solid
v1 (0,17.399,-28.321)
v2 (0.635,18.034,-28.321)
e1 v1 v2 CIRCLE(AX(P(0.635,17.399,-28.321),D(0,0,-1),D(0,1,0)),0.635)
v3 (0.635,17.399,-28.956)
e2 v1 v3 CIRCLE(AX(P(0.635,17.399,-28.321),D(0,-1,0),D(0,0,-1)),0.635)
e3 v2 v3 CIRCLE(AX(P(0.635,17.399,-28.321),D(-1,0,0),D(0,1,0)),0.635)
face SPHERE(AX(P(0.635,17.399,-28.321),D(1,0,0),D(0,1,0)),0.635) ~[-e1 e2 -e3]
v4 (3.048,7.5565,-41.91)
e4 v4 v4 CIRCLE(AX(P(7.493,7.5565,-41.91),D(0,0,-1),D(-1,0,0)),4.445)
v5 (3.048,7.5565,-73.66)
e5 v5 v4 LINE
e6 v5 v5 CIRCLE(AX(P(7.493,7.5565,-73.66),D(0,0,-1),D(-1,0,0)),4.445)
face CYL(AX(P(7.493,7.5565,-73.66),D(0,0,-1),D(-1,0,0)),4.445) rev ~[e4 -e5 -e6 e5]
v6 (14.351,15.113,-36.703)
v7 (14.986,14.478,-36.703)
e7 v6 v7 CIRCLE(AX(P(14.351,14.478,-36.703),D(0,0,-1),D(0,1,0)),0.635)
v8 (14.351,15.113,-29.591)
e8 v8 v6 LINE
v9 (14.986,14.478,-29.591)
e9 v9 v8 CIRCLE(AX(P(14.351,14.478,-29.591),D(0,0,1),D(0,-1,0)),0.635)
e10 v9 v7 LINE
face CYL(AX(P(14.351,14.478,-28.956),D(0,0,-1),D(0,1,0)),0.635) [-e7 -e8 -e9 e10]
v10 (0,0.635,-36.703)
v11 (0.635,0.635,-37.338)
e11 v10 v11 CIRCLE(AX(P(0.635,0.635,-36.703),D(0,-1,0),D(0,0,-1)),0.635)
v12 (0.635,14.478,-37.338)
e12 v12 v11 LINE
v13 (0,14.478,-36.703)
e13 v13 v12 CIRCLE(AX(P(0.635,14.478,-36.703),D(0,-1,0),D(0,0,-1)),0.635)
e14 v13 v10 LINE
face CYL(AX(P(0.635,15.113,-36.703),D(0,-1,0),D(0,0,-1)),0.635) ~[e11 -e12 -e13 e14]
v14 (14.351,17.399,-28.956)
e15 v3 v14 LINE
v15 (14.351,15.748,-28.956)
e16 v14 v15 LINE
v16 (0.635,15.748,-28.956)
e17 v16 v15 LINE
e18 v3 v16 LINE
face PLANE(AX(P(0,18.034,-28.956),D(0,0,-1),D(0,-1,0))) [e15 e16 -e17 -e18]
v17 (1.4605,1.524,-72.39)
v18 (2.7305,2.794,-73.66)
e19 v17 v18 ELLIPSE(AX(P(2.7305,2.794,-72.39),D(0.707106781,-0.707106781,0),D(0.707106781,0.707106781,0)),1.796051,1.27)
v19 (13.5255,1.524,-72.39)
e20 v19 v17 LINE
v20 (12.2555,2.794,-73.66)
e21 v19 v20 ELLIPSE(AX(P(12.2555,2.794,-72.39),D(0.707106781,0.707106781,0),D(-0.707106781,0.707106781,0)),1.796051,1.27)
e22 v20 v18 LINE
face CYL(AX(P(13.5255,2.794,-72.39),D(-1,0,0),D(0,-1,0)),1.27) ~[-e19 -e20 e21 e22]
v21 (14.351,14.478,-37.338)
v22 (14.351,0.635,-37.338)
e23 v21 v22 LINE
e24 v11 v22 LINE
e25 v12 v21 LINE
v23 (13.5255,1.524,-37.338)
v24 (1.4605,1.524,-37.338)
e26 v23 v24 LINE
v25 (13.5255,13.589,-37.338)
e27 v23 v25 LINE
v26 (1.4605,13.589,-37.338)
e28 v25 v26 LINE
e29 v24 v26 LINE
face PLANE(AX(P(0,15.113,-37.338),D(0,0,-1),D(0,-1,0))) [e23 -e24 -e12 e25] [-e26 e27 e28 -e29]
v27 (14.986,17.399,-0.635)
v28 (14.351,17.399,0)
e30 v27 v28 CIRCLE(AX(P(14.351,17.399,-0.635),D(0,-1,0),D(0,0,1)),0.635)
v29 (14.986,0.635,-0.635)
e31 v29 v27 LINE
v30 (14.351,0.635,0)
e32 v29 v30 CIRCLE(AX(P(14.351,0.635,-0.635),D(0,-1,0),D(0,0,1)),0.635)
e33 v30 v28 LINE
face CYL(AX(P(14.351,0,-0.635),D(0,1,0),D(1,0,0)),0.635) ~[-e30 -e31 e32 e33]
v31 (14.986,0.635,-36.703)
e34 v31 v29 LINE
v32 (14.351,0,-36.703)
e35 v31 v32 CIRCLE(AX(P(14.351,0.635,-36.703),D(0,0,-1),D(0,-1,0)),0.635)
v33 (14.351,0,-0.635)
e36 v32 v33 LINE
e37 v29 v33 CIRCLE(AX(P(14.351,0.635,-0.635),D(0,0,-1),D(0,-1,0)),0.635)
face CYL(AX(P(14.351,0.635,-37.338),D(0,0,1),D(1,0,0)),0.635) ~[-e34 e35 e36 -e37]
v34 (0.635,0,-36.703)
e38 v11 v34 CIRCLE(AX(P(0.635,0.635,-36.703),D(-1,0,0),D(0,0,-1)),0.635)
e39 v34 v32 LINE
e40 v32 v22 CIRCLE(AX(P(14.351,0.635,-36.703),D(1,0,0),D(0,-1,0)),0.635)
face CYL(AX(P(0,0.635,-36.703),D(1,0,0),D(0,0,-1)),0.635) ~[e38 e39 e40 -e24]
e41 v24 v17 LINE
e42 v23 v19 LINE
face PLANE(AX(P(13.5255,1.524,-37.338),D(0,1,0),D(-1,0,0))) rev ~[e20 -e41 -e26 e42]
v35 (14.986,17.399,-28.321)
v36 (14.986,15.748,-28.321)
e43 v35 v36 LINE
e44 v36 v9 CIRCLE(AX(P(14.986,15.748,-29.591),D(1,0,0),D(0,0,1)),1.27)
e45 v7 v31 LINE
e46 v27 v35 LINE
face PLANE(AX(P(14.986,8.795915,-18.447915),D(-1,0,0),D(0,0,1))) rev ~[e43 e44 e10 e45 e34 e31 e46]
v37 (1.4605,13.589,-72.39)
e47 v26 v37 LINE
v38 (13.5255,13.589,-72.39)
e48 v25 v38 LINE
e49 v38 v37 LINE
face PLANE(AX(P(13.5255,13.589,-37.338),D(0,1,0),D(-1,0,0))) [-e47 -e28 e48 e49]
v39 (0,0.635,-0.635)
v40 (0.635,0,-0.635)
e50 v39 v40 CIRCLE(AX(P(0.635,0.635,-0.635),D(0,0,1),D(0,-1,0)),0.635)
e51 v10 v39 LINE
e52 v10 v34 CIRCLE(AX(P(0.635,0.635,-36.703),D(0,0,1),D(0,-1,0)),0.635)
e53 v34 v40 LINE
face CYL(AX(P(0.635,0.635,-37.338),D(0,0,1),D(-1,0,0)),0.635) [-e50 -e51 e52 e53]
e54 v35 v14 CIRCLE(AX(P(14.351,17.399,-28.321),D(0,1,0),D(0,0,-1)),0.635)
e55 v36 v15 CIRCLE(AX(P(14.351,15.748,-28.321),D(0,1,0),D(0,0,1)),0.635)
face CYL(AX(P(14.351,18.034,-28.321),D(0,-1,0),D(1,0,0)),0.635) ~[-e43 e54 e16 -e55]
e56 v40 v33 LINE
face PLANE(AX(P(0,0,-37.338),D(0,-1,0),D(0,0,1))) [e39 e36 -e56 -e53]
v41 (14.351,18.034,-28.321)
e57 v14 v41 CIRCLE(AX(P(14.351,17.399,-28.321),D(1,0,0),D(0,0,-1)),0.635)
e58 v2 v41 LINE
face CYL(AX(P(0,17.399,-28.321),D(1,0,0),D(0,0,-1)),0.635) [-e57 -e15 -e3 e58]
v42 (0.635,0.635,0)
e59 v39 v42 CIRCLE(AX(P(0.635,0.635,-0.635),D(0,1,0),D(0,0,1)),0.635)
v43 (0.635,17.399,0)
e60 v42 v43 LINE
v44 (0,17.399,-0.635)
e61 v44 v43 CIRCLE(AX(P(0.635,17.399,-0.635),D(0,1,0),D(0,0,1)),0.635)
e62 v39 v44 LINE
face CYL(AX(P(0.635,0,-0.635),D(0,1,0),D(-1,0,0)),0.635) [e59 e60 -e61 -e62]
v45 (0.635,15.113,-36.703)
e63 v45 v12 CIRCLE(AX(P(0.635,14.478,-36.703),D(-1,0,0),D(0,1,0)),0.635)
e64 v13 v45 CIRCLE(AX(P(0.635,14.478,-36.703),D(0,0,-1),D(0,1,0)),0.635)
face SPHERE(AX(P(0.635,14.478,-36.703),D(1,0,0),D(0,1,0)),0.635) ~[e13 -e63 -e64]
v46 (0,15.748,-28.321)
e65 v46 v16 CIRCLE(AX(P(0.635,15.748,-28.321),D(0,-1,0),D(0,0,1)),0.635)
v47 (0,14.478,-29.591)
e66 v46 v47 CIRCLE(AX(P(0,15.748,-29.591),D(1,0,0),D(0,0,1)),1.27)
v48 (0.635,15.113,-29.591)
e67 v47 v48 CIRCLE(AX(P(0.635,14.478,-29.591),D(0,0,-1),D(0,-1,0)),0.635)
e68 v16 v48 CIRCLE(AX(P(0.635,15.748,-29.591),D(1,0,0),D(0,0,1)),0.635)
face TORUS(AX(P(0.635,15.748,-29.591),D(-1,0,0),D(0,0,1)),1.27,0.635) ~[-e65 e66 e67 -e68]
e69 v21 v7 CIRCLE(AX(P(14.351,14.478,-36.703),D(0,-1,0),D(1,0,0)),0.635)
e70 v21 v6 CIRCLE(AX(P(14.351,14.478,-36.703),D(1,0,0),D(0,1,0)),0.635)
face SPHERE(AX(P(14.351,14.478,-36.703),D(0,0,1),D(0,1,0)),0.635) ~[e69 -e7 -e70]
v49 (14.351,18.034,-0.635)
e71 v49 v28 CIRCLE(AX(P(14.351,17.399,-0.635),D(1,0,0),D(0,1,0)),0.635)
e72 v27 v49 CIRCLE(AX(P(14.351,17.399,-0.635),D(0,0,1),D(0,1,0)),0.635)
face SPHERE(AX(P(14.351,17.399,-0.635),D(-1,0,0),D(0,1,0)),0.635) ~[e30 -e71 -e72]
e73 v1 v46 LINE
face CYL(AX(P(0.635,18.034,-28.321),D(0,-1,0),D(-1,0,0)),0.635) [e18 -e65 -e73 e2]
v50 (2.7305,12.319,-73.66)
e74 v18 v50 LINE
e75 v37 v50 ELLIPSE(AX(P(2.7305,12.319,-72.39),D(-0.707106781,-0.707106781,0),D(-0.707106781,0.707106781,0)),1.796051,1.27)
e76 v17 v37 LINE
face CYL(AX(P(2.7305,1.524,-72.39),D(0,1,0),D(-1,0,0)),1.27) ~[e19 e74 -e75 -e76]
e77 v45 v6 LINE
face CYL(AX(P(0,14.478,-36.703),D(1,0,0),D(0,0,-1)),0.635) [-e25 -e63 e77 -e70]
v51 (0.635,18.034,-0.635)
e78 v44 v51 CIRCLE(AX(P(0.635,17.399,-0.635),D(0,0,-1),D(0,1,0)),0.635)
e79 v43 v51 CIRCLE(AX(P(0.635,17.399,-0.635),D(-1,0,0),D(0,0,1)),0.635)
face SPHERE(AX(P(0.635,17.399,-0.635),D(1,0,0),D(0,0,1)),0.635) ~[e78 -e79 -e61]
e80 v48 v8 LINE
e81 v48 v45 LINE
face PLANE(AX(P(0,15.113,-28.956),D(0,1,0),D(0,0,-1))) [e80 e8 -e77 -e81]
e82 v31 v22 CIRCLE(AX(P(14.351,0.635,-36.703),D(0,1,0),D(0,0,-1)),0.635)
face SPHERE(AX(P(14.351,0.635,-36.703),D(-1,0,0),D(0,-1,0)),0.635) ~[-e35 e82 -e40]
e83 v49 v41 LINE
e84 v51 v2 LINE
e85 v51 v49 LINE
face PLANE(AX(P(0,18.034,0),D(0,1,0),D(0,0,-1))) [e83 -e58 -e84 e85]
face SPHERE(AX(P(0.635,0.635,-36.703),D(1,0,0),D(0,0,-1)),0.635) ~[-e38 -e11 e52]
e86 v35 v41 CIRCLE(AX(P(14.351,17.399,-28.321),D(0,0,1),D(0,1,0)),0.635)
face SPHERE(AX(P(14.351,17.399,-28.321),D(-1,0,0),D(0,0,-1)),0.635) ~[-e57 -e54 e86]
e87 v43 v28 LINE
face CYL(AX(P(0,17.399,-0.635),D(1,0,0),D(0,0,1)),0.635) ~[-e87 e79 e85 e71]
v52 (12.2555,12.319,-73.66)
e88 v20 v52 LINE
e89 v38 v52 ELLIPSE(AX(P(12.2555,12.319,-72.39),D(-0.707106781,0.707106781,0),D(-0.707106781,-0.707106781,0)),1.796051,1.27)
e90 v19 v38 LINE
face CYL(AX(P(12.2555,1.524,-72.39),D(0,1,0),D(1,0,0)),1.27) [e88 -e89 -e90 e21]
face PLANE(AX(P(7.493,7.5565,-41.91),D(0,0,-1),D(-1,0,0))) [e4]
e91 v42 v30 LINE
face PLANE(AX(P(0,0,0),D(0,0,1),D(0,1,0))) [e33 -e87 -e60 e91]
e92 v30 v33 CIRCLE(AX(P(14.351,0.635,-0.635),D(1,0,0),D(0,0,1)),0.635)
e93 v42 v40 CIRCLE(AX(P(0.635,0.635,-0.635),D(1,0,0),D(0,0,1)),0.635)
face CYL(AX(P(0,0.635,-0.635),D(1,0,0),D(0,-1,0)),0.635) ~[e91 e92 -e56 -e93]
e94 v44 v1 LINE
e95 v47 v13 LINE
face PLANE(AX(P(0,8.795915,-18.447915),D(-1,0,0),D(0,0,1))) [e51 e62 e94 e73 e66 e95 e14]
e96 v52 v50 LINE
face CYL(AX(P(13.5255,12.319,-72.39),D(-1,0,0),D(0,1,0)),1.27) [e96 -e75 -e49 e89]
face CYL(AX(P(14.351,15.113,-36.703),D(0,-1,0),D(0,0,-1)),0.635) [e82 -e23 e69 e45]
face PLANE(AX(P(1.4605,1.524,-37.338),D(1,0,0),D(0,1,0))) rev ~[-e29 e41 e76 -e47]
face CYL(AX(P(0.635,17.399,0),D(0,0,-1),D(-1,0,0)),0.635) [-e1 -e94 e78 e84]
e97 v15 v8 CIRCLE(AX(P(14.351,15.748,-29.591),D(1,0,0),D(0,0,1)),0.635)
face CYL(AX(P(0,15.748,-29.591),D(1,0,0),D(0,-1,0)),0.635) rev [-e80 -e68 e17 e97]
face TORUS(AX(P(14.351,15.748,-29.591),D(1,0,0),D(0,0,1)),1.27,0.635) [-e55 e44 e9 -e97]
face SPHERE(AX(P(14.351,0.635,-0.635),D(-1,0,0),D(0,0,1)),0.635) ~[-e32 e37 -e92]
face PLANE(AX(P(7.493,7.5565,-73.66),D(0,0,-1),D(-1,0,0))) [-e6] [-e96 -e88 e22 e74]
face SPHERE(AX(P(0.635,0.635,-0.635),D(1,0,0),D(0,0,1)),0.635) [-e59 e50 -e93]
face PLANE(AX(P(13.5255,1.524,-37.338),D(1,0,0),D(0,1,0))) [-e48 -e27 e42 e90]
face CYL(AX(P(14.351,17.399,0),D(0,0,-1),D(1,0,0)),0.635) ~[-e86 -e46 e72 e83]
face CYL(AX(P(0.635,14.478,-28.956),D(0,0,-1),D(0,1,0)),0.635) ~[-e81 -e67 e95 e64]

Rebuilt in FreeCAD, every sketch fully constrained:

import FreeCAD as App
import Part
import Sketcher

V = App.Vector
Q = App.Units.Quantity


def edges_at(feature, points):
    """Names of the edges that pass closest to the given points."""
    edges = feature.Shape.Edges
    near = lambda p: min(range(len(edges)), key=lambda i: edges[i].distToShape(Part.Vertex(*p))[0])
    return sorted({f"Edge{near(p) + 1}" for p in points})

doc = App.newDocument("Part")
body = doc.addObject("PartDesign::Body", "Body")

# Sketch on YZ plane
sketch1 = doc.addObject("Sketcher::SketchObject", "Sketch")
body.addObject(sketch1)
sketch1.AttachmentSupport = (doc.YZ_Plane, [""])
sketch1.MapMode = "FlatFace"
sketch1.addGeometry([
    Part.LineSegment(V(18, 0, 0), V(0, 0, 0)),  # 0
    Part.LineSegment(V(0, 0, 0), V(0, -37.3, 0)),  # 1
    Part.LineSegment(V(0, -37.3, 0), V(15.1, -37.3, 0)),  # 2
    Part.LineSegment(V(15.1, -37.3, 0), V(15.1, -29, 0)),  # 3
    Part.LineSegment(V(15.1, -29, 0), V(18, -29, 0)),  # 4
    Part.LineSegment(V(18, -29, 0), V(18, 0, 0)),  # 5
], False)
sketch1.addConstraint([
    Sketcher.Constraint("Coincident", 0, 2, 1, 1),
    Sketcher.Constraint("Coincident", 1, 2, 2, 1),
    Sketcher.Constraint("Coincident", 2, 2, 3, 1),
    Sketcher.Constraint("Coincident", 3, 2, 4, 1),
    Sketcher.Constraint("Coincident", 4, 2, 5, 1),
    Sketcher.Constraint("Coincident", 5, 2, 0, 1),
    Sketcher.Constraint("Horizontal", 0),
    Sketcher.Constraint("Vertical", 1),
    Sketcher.Constraint("Horizontal", 2),
    Sketcher.Constraint("Vertical", 3),
    Sketcher.Constraint("Horizontal", 4),
    Sketcher.Constraint("Vertical", 5),
    Sketcher.Constraint("Coincident", 0, 2, -1, 1),
    Sketcher.Constraint("DistanceX", 0, 2, 0, 1, Q("0.71 in")),
    Sketcher.Constraint("DistanceY", 1, 2, 1, 1, Q("1.47 in")),
    Sketcher.Constraint("DistanceY", 3, 1, 3, 2, Q("0.33 in")),
    Sketcher.Constraint("DistanceX", 2, 1, 2, 2, Q("0.595 in")),
])
pad1 = doc.addObject("PartDesign::Pad", "Pad")
body.addObject(pad1)
pad1.Profile = sketch1
pad1.Length = Q("0.59 in")

# Sketch on XY plane
sketch2 = doc.addObject("Sketcher::SketchObject", "Sketch001")
body.addObject(sketch2)
sketch2.AttachmentSupport = (doc.XY_Plane, [""])
sketch2.MapMode = "FlatFace"
sketch2.AttachmentOffset = App.Placement(V(0, 0, -1.47 * 25.4), App.Rotation())
sketch2.addGeometry([
    Part.LineSegment(V(14, 14, 0), V(14, 2, 0)),
    Part.LineSegment(V(14, 2, 0), V(1, 2, 0)),
    Part.LineSegment(V(1, 2, 0), V(1, 14, 0)),
    Part.LineSegment(V(1, 14, 0), V(14, 14, 0)),
], False)
sketch2.addConstraint([
    Sketcher.Constraint("Coincident", 0, 2, 1, 1),
    Sketcher.Constraint("Coincident", 1, 2, 2, 1),
    Sketcher.Constraint("Coincident", 2, 2, 3, 1),
    Sketcher.Constraint("Coincident", 3, 2, 0, 1),
    Sketcher.Constraint("Vertical", 0),
    Sketcher.Constraint("Horizontal", 1),
    Sketcher.Constraint("Vertical", 2),
    Sketcher.Constraint("Horizontal", 3),
    Sketcher.Constraint("Equal", 3, 0),
    Sketcher.Constraint("DistanceX", 1, 2, 1, 1, Q("0.475 in")),
    Sketcher.Constraint("DistanceY", -1, 1, 0, 2, Q("0.06 in")),
    Sketcher.Constraint("DistanceX", -1, 1, 0, 2, Q("0.5325 in")),
])
pad2 = doc.addObject("PartDesign::Pad", "Pad001")
body.addObject(pad2)
pad2.Profile = sketch2
pad2.Length = Q("1.43 in")
pad2.Reversed = True
doc.recompute()

fillet = doc.addObject("PartDesign::Fillet", "Fillet")
body.addObject(fillet)
fillet.Base = (pad2, edges_at(pad2, [
    (1.46, 7.556, -73.66),
    (7.493, 13.589, -73.66),
    (13.525, 7.556, -73.66),
    (7.493, 1.524, -73.66),
]))
fillet.Radius = Q("0.05 in")
doc.recompute()

fillet2 = doc.addObject("PartDesign::Fillet", "Fillet001")
body.addObject(fillet2)
fillet2.Base = (fillet, edges_at(fillet, [
    (14.986, 15.113, -33.147),
    (7.493, 0, 0),
    (7.493, 18.034, 0),
    (7.493, 18.034, -28.956),
    (7.493, 15.113, -28.956),
    (7.493, 15.113, -37.338),
    (7.493, 0, -37.338),
    (14.986, 16.573, -28.956),
    (14.986, 18.034, -14.478),
    (14.986, 9.017, 0),
    (14.986, 0, -18.669),
    (0, 9.017, 0),
    (0, 18.034, -14.478),
    (0, 16.573, -28.956),
    (14.986, 7.556, -37.338),
    (0, 15.113, -33.147),
    (0, 7.556, -37.338),
    (0, 0, -18.669),
]))
fillet2.Radius = Q("0.025 in")

# Sketch on XY plane
sketch3 = doc.addObject("Sketcher::SketchObject", "Sketch002")
body.addObject(sketch3)
sketch3.AttachmentSupport = (doc.XY_Plane, [""])
sketch3.MapMode = "FlatFace"
sketch3.AttachmentOffset = App.Placement(V(0, 0, -2.9 * 25.4), App.Rotation())
sketch3.addGeometry(Part.Circle(V(7.5, 7.6, 0), V(0, 0, 1), 4.4), False)
sketch3.addConstraint([
    Sketcher.Constraint("Diameter", 0, Q("0.35 in")),
    Sketcher.Constraint("DistanceX", -1, 1, 0, 3, Q("0.295 in")),
    Sketcher.Constraint("DistanceY", -1, 1, 0, 3, Q("0.2975 in")),
])
pocket1 = doc.addObject("PartDesign::Pocket", "Pocket")
body.addObject(pocket1)
pocket1.Profile = sketch3
pocket1.Length = Q("1.25 in")
pocket1.Reversed = True

doc.recompute()
